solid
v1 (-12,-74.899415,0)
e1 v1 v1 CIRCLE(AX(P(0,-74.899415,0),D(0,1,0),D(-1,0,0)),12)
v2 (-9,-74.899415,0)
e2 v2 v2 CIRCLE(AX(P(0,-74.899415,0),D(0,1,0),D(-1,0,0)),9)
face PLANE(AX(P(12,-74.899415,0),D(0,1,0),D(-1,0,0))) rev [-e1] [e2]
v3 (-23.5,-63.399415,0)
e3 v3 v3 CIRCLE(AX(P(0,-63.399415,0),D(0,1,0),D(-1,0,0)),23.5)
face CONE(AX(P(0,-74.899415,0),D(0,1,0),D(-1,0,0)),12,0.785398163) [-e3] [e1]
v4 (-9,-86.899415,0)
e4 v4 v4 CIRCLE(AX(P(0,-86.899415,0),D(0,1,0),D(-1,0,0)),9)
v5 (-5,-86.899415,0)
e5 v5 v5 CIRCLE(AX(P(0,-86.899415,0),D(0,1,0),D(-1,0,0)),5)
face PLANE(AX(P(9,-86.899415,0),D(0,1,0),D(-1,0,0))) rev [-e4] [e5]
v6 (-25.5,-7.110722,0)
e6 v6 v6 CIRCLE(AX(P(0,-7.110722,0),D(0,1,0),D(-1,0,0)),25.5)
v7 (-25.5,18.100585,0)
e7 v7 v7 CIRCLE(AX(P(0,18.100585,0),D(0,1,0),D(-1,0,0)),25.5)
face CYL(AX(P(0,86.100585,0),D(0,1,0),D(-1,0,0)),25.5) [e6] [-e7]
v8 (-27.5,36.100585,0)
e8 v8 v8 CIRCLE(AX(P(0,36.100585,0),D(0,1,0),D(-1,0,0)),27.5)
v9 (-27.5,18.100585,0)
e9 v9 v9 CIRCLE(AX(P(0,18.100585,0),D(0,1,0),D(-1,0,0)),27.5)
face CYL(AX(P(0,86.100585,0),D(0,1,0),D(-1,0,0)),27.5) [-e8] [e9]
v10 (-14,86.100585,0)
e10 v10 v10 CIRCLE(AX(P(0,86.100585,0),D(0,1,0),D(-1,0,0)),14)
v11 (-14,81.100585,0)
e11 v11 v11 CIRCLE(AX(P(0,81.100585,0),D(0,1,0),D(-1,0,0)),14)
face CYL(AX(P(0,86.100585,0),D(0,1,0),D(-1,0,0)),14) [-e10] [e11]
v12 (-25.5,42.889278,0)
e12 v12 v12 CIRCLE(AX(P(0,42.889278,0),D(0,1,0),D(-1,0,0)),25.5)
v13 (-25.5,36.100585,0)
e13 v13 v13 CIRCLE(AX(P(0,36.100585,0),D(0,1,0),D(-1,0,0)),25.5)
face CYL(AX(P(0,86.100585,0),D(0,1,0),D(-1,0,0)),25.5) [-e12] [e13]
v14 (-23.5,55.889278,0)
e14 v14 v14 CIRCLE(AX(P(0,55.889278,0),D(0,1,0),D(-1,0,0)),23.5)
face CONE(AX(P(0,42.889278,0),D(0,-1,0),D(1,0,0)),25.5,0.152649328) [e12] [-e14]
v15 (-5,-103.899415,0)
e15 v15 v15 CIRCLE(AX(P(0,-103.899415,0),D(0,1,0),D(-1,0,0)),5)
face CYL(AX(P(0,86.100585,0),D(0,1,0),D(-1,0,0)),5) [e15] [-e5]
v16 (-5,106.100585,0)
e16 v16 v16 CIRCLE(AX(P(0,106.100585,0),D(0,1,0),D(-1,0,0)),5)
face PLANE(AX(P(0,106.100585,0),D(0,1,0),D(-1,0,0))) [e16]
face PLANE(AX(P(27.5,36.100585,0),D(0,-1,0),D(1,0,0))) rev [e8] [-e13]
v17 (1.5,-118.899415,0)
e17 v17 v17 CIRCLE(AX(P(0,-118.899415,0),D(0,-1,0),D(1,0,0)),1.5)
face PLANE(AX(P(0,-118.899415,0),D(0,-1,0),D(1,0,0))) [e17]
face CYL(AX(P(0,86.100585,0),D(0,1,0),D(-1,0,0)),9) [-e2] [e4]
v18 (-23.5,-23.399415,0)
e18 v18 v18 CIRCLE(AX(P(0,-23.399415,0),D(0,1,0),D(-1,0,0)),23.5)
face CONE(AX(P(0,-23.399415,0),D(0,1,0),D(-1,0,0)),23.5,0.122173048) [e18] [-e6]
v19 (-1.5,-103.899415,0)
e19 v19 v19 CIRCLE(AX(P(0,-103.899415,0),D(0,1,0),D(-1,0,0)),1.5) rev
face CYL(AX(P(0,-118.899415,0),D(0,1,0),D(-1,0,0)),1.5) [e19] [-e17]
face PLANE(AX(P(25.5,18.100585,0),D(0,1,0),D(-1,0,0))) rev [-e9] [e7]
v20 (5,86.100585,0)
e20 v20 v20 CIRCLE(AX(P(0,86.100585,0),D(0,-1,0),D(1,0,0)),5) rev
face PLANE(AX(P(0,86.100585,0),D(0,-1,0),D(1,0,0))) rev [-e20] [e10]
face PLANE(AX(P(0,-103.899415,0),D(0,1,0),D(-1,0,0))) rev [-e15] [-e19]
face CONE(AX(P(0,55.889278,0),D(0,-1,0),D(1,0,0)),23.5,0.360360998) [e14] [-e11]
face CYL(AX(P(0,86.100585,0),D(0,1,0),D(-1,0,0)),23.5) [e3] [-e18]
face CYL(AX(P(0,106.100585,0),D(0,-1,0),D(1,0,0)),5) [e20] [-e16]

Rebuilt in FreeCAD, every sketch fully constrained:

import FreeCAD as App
import Part
import Sketcher
from FreeCAD import Vector
Q = App.Units.Quantity

doc = App.newDocument("Part")
body = doc.addObject("PartDesign::Body", "Body")

sketch1 = doc.addObject("Sketcher::SketchObject", "Sketch")
body.addObject(sketch1)
sketch1.AttachmentSupport = (doc.XY_Plane, [""])
sketch1.MapMode = "FlatFace"
sketch1.addGeometry([
    Part.LineSegment(Vector(14, 86.1, 0), Vector(0, 86.1, 0)),
    Part.LineSegment(Vector(0, 86.1, 0), Vector(0, -103.9, 0)),
    Part.LineSegment(Vector(0, -103.9, 0), Vector(5, -103.9, 0)),
    Part.LineSegment(Vector(5, -103.9, 0), Vector(5, -86.9, 0)),
    Part.LineSegment(Vector(5, -86.9, 0), Vector(9, -86.9, 0)),
    Part.LineSegment(Vector(9, -86.9, 0), Vector(9, -74.9, 0)),
    Part.LineSegment(Vector(9, -74.9, 0), Vector(12, -74.9, 0)),
    Part.LineSegment(Vector(12, -74.9, 0), Vector(23.5, -63.4, 0)),
    Part.LineSegment(Vector(23.5, -63.4, 0), Vector(23.5, -23.4, 0)),
    Part.LineSegment(Vector(23.5, -23.4, 0), Vector(25.5, -7.1, 0)),
    Part.LineSegment(Vector(25.5, -7.1, 0), Vector(25.5, 18.1, 0)),
    Part.LineSegment(Vector(25.5, 18.1, 0), Vector(27.5, 18.1, 0)),
    Part.LineSegment(Vector(27.5, 18.1, 0), Vector(27.5, 36.1, 0)),
    Part.LineSegment(Vector(27.5, 36.1, 0), Vector(25.5, 36.1, 0)),
    Part.LineSegment(Vector(25.5, 36.1, 0), Vector(25.5, 42.9, 0)),
    Part.LineSegment(Vector(25.5, 42.9, 0), Vector(23.5, 55.9, 0)),
    Part.LineSegment(Vector(23.5, 55.9, 0), Vector(14, 81.1, 0)),
    Part.LineSegment(Vector(14, 81.1, 0), Vector(14, 86.1, 0)),
], False)
sketch1.addConstraint([
    Sketcher.Constraint("Coincident", 0, 2, 1, 1),
    Sketcher.Constraint("Coincident", 1, 2, 2, 1),
    Sketcher.Constraint("Coincident", 2, 2, 3, 1),
    Sketcher.Constraint("Coincident", 3, 2, 4, 1),
    Sketcher.Constraint("Coincident", 4, 2, 5, 1),
    Sketcher.Constraint("Coincident", 5, 2, 6, 1),
    Sketcher.Constraint("Coincident", 6, 2, 7, 1),
    Sketcher.Constraint("Coincident", 7, 2, 8, 1),
    Sketcher.Constraint("Coincident", 8, 2, 9, 1),
    Sketcher.Constraint("Coincident", 9, 2, 10, 1),
    Sketcher.Constraint("Coincident", 10, 2, 11, 1),
    Sketcher.Constraint("Coincident", 11, 2, 12, 1),
    Sketcher.Constraint("Coincident", 12, 2, 13, 1),
    Sketcher.Constraint("Coincident", 13, 2, 14, 1),
    Sketcher.Constraint("Coincident", 14, 2, 15, 1),
    Sketcher.Constraint("Coincident", 15, 2, 16, 1),
    Sketcher.Constraint("Coincident", 16, 2, 17, 1),
    Sketcher.Constraint("Coincident", 17, 2, 0, 1),
    Sketcher.Constraint("Horizontal", 0),
    Sketcher.Constraint("Vertical", 1),
    Sketcher.Constraint("Horizontal", 2),
    Sketcher.Constraint("Vertical", 3),
    Sketcher.Constraint("Horizontal", 4),
    Sketcher.Constraint("Vertical", 5),
    Sketcher.Constraint("Horizontal", 6),
    Sketcher.Constraint("Vertical", 8),
    Sketcher.Constraint("Vertical", 10),
    Sketcher.Constraint("Horizontal", 11),
    Sketcher.Constraint("Vertical", 12),
    Sketcher.Constraint("Horizontal", 13),
    Sketcher.Constraint("Vertical", 14),
    Sketcher.Constraint("Vertical", 17),
    Sketcher.Constraint("PointOnObject", 0, 2, -2),
    Sketcher.Constraint("Vertical", 10, 2, 13, 2),
    Sketcher.Constraint("Vertical", 8, 2, 15, 2),
    Sketcher.Constraint("Equal", 2, 17),
    Sketcher.Constraint("DistanceX", 0, 2, 0, 1, 14.0),
    Sketcher.Constraint("DistanceX", 2, 1, 2, 2, 5.0),
    Sketcher.Constraint("DistanceX", 4, 1, 4, 2, 4.0),
    Sketcher.Constraint("DistanceX", 6, 1, 6, 2, 3.0),
    Sketcher.Constraint("DistanceX", 11, 1, 11, 2, 2.0),
    Sketcher.Constraint("DistanceY", 1, 2, 1, 1, 190.0),
    Sketcher.Constraint("DistanceY", 3, 1, 3, 2, 17.0),
    Sketcher.Constraint("DistanceY", 5, 1, 5, 2, 12.0),
    Sketcher.Constraint("DistanceY", 8, 1, 8, 2, 40.0),
    Sketcher.Constraint("DistanceY", 12, 1, 12, 2, 18.0),
    Sketcher.Constraint("Angle", 7, Q("45 deg")),
    Sketcher.Constraint("Angle", 9, Q("83 deg")),
    Sketcher.Constraint("DistanceX", 8, 2, 9, 2, 2.0),
    Sketcher.Constraint("DistanceY", 10, 2, 0, 2, 68.0),
    Sketcher.Constraint("DistanceY", 9, 2, 14, 2, 50.0),
    Sketcher.Constraint("DistanceY", 14, 2, 15, 2, 13.0),
    Sketcher.Constraint("DistanceX", -1, 1, 7, 2, 23.5),
    Sketcher.Constraint("DistanceY", -1, 1, 0, 2, 86.100585),
])
revolution = doc.addObject("PartDesign::Revolution", "Revolution")
body.addObject(revolution)
revolution.Profile = sketch1
revolution.ReferenceAxis = (sketch1, ["V_Axis"])
revolution.Angle = 360

sketch2 = doc.addObject("Sketcher::SketchObject", "Sketch001")
body.addObject(sketch2)
sketch2.AttachmentSupport = (doc.XZ_Plane, [""])
sketch2.MapMode = "FlatFace"
sketch2.AttachmentOffset = App.Placement(Vector(0, 0, -86.100585), App.Rotation())
sketch2.addGeometry(Part.Circle(Vector(0, 0, 0), Vector(0, 0, 1), 5), False)
sketch2.addConstraint([
    Sketcher.Constraint("Coincident", 0, 3, -1, 1),
    Sketcher.Constraint("Diameter", 0, 10.0),
])
pad1 = doc.addObject("PartDesign::Pad", "Pad")
body.addObject(pad1)
pad1.Profile = sketch2
pad1.Length = 20
pad1.Reversed = True

sketch3 = doc.addObject("Sketcher::SketchObject", "Sketch002")
body.addObject(sketch3)
sketch3.AttachmentSupport = (doc.XZ_Plane, [""])
sketch3.MapMode = "FlatFace"
sketch3.AttachmentOffset = App.Placement(Vector(0, 0, 103.899415), App.Rotation())
sketch3.addGeometry(Part.Circle(Vector(0, 0, 0), Vector(0, 0, 1), 1.5), False)
sketch3.addConstraint([
    Sketcher.Constraint("Coincident", 0, 3, -1, 1),
    Sketcher.Constraint("Diameter", 0, 3.0),
])
pad2 = doc.addObject("PartDesign::Pad", "Pad001")
body.addObject(pad2)
pad2.Profile = sketch3
pad2.Length = 15

doc.recompute()
